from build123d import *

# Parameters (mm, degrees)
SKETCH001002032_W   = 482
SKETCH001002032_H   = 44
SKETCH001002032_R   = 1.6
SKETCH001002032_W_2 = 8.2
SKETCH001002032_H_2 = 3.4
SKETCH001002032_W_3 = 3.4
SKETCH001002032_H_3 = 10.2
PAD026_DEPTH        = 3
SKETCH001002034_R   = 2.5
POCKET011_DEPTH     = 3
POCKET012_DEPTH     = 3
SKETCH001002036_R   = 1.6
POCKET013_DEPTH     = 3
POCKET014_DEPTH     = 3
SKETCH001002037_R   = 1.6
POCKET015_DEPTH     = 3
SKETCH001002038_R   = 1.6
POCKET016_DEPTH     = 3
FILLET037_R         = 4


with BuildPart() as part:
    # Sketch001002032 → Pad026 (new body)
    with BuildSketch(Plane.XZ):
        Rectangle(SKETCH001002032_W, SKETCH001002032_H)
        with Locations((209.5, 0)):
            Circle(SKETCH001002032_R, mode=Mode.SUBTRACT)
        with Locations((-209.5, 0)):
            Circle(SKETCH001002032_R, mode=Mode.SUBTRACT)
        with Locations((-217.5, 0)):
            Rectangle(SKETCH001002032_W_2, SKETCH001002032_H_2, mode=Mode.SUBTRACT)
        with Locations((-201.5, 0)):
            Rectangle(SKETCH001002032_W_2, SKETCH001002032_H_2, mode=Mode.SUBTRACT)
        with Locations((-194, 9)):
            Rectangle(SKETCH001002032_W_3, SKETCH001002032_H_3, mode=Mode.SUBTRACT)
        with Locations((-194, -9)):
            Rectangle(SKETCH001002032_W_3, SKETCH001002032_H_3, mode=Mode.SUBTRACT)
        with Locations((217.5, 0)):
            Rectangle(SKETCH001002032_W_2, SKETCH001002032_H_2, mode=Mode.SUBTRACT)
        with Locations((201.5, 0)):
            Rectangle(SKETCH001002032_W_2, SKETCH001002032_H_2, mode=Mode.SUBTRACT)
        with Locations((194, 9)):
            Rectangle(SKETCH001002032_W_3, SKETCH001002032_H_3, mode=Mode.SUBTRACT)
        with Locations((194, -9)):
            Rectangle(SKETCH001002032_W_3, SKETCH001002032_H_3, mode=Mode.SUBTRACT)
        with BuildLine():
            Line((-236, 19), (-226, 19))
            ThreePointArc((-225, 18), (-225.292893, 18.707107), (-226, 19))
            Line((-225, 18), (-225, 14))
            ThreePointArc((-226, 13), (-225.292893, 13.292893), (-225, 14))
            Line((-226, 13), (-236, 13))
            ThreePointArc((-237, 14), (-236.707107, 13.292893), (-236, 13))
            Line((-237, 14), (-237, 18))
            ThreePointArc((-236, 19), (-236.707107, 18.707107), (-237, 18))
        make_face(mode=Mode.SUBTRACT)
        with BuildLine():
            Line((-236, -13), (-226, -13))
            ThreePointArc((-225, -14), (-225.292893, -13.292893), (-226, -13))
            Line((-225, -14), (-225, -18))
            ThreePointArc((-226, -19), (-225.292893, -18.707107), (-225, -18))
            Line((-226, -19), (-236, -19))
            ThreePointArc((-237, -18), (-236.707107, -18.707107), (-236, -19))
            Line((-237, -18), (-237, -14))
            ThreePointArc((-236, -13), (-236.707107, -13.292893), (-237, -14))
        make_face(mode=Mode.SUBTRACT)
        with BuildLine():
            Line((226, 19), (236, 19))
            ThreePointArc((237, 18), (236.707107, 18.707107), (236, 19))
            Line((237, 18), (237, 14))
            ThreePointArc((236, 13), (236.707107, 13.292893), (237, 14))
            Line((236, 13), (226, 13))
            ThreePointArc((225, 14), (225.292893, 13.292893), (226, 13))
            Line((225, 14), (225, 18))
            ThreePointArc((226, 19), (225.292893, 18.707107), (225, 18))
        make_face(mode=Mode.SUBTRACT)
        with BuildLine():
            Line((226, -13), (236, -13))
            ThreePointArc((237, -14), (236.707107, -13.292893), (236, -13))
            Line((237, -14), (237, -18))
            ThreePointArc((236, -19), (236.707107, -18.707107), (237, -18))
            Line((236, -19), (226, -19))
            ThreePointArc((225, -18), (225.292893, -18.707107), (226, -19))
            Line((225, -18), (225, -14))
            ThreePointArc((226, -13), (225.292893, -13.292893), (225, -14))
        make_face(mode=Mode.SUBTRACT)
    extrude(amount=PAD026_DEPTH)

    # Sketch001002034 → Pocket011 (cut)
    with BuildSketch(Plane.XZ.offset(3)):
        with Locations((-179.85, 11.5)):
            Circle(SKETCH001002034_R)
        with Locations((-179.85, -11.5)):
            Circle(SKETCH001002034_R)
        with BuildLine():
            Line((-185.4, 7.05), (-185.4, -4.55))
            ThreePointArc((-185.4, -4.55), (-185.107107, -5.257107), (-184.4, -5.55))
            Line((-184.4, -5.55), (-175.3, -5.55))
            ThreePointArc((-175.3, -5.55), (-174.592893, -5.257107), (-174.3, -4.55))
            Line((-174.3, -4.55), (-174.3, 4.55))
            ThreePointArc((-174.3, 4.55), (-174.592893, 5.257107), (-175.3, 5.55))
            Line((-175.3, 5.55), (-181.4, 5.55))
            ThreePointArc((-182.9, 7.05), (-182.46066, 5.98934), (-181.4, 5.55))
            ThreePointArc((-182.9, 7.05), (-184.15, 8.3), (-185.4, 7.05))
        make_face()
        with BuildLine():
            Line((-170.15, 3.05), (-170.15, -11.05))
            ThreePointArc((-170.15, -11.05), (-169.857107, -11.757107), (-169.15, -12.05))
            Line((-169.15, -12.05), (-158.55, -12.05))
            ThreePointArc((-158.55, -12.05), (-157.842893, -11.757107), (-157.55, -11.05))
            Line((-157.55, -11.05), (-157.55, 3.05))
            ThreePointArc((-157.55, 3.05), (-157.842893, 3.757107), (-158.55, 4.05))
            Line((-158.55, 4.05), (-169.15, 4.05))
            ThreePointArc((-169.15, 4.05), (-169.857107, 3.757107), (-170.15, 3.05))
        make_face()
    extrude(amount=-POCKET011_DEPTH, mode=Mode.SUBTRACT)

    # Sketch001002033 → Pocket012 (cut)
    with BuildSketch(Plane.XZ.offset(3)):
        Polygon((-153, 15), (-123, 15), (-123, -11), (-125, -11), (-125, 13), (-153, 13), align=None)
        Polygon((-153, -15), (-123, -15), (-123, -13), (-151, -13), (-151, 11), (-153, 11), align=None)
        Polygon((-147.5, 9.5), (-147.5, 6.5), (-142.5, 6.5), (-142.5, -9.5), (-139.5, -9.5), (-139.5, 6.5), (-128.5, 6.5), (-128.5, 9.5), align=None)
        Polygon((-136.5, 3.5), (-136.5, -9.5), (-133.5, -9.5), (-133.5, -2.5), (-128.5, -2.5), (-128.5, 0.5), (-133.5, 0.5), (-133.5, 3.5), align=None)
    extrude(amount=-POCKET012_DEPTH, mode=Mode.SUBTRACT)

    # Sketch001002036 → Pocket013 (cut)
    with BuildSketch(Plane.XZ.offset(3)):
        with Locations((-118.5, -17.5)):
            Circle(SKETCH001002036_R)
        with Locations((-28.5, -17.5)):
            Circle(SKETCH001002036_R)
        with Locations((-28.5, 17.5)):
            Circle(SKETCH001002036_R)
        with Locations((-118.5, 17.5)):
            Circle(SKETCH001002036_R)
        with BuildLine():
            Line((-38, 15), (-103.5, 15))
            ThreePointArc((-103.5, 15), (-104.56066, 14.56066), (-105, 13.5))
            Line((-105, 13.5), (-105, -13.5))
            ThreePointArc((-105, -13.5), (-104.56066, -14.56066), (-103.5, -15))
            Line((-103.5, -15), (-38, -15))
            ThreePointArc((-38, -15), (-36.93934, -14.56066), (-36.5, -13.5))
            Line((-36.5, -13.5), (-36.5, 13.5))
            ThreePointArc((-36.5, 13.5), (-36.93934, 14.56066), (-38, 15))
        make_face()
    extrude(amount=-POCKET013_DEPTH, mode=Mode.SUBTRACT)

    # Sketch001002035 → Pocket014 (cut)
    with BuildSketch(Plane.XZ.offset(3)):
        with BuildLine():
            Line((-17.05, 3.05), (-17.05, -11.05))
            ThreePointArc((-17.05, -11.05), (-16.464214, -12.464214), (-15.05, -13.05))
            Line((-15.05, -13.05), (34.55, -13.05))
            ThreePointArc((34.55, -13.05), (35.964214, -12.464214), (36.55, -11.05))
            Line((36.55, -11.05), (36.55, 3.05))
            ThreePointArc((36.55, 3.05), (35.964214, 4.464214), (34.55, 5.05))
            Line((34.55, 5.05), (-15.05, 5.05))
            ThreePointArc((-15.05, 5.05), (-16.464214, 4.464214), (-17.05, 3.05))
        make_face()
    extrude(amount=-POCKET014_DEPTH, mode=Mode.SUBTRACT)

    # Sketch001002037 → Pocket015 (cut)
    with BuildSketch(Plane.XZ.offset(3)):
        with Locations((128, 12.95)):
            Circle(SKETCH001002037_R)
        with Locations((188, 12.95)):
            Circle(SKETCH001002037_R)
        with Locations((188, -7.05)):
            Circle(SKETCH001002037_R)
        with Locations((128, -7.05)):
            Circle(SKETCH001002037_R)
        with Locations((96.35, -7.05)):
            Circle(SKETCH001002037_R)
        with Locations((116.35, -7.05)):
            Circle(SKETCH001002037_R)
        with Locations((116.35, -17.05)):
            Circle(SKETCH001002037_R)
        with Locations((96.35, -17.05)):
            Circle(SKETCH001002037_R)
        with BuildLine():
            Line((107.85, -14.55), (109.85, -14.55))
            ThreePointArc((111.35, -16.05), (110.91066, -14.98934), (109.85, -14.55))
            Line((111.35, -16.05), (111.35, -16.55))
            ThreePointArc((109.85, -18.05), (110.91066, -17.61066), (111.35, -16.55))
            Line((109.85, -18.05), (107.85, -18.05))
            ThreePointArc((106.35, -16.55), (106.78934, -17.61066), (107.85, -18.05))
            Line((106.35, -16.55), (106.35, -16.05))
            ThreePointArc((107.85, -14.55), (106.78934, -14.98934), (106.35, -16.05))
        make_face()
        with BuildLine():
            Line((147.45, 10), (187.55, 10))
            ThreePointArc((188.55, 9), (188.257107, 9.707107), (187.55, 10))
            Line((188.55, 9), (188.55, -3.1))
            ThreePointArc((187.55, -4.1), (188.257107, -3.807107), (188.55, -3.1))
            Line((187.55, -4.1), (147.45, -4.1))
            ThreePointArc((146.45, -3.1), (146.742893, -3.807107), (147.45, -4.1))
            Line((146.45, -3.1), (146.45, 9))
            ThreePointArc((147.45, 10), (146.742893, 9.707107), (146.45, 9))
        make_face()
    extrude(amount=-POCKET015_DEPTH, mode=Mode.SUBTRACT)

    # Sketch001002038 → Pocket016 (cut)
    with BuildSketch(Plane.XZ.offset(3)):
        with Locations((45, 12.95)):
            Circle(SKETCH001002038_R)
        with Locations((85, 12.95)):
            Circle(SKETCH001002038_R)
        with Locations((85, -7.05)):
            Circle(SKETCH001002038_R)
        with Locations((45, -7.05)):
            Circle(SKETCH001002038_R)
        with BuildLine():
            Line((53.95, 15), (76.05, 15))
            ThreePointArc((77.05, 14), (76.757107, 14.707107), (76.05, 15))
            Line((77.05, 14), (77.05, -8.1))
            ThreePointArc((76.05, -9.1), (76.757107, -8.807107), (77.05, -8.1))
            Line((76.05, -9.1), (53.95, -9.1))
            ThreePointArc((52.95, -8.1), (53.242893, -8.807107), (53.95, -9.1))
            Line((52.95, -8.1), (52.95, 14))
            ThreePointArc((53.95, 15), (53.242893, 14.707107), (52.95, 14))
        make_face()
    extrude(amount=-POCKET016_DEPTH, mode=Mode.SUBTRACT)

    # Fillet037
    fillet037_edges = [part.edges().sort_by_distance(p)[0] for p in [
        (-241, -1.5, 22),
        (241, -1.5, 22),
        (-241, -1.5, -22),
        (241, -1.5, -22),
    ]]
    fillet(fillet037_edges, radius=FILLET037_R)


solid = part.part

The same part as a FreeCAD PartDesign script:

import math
import FreeCAD as App
import Part
import Sketcher
Q = App.Units.Quantity


def edges_at(feature, points):
    """Names of the edges that pass closest to the given points."""
    edges = feature.Shape.Edges
    near = lambda p: min(range(len(edges)), key=lambda i: edges[i].distToShape(Part.Vertex(*p))[0])
    return sorted({f"Edge{near(p) + 1}" for p in points})


def add_polygon(sketch, points):
    """Adds a closed chain of lines whose ends are joined by coincident constraints."""
    first, n = sketch.GeometryCount, len(points)
    for a, b in zip(points, points[1:] + points[:1]):
        sketch.addGeometry(Part.LineSegment(App.Vector(*a, 0), App.Vector(*b, 0)), False)
    for i in range(n):
        sketch.addConstraint(Sketcher.Constraint("Coincident", first + i, 2, first + (i + 1) % n, 1))

doc = App.newDocument("Part")
body = doc.addObject("PartDesign::Body", "Body")

# Sketch on XZ plane
sketch1 = body.newObject("Sketcher::SketchObject", "Sketch")
sketch1.AttachmentSupport = (doc.getObject("XZ_Plane"), [""])
sketch1.MapMode = "FlatFace"
add_polygon(sketch1, [(-241, 22), (-241, -22), (241, -22), (241, 22)])  # lines 0-3
sketch1.addGeometry(Part.ArcOfCircle(Part.Circle(App.Vector(-236, -14, 0), App.Vector(0, 0, 1), 1), math.radians(90), math.radians(180)), False)  # 4
sketch1.addGeometry(Part.LineSegment(App.Vector(-236, -13, 0), App.Vector(-226, -13, 0)), False)  # 5
sketch1.addGeometry(Part.ArcOfCircle(Part.Circle(App.Vector(-226, -14, 0), App.Vector(0, 0, 1), 1), math.radians(0), math.radians(90)), False)  # 6
sketch1.addGeometry(Part.LineSegment(App.Vector(-225, -14, 0), App.Vector(-225, -18, 0)), False)  # 7
sketch1.addGeometry(Part.ArcOfCircle(Part.Circle(App.Vector(-226, -18, 0), App.Vector(0, 0, 1), 1), math.radians(-90), math.radians(0)), False)  # 8
sketch1.addGeometry(Part.LineSegment(App.Vector(-226, -19, 0), App.Vector(-236, -19, 0)), False)  # 9
sketch1.addGeometry(Part.ArcOfCircle(Part.Circle(App.Vector(-236, -18, 0), App.Vector(0, 0, 1), 1), math.radians(180), math.radians(270)), False)  # 10
sketch1.addGeometry(Part.LineSegment(App.Vector(-237, -18, 0), App.Vector(-237, -14, 0)), False)  # 11
add_polygon(sketch1, [(-192.3, -14.1), (-195.7, -14.1), (-195.7, -3.9), (-192.3, -3.9)])  # lines 12-15
sketch1.addGeometry(Part.ArcOfCircle(Part.Circle(App.Vector(226, -14, 0), App.Vector(0, 0, 1), 1), math.radians(90), math.radians(180)), False)  # 16
sketch1.addGeometry(Part.LineSegment(App.Vector(226, -13, 0), App.Vector(236, -13, 0)), False)  # 17
sketch1.addGeometry(Part.ArcOfCircle(Part.Circle(App.Vector(236, -14, 0), App.Vector(0, 0, 1), 1), math.radians(0), math.radians(90)), False)  # 18
sketch1.addGeometry(Part.LineSegment(App.Vector(237, -14, 0), App.Vector(237, -18, 0)), False)  # 19
sketch1.addGeometry(Part.ArcOfCircle(Part.Circle(App.Vector(236, -18, 0), App.Vector(0, 0, 1), 1), math.radians(-90), math.radians(0)), False)  # 20
sketch1.addGeometry(Part.LineSegment(App.Vector(236, -19, 0), App.Vector(226, -19, 0)), False)  # 21
sketch1.addGeometry(Part.ArcOfCircle(Part.Circle(App.Vector(226, -18, 0), App.Vector(0, 0, 1), 1), math.radians(180), math.radians(270)), False)  # 22
sketch1.addGeometry(Part.LineSegment(App.Vector(225, -18, 0), App.Vector(225, -14, 0)), False)  # 23
add_polygon(sketch1, [(195.7, -14.1), (192.3, -14.1), (192.3, -3.9), (195.7, -3.9)])  # lines 24-27
add_polygon(sketch1, [(-213.4, -1.7), (-221.6, -1.7), (-221.6, 1.7), (-213.4, 1.7)])  # lines 28-31
sketch1.addGeometry(Part.Circle(App.Vector(-209.5, 0, 0), App.Vector(0, 0, 1), 1.6), False)  # 32
add_polygon(sketch1, [(-197.4, -1.7), (-205.6, -1.7), (-205.6, 1.7), (-197.4, 1.7)])  # lines 33-36
add_polygon(sketch1, [(-192.3, 3.9), (-195.7, 3.9), (-195.7, 14.1), (-192.3, 14.1)])  # lines 37-40
sketch1.addGeometry(Part.ArcOfCircle(Part.Circle(App.Vector(-236, 18, 0), App.Vector(0, 0, 1), 1), math.radians(90), math.radians(180)), False)  # 41
sketch1.addGeometry(Part.LineSegment(App.Vector(-236, 19, 0), App.Vector(-226, 19, 0)), False)  # 42
sketch1.addGeometry(Part.ArcOfCircle(Part.Circle(App.Vector(-226, 18, 0), App.Vector(0, 0, 1), 1), math.radians(0), math.radians(90)), False)  # 43
sketch1.addGeometry(Part.LineSegment(App.Vector(-225, 18, 0), App.Vector(-225, 14, 0)), False)  # 44
sketch1.addGeometry(Part.ArcOfCircle(Part.Circle(App.Vector(-226, 14, 0), App.Vector(0, 0, 1), 1), math.radians(-90), math.radians(0)), False)  # 45
sketch1.addGeometry(Part.LineSegment(App.Vector(-226, 13, 0), App.Vector(-236, 13, 0)), False)  # 46
sketch1.addGeometry(Part.ArcOfCircle(Part.Circle(App.Vector(-236, 14, 0), App.Vector(0, 0, 1), 1), math.radians(180), math.radians(270)), False)  # 47
sketch1.addGeometry(Part.LineSegment(App.Vector(-237, 14, 0), App.Vector(-237, 18, 0)), False)  # 48
add_polygon(sketch1, [(205.6, -1.7), (197.4, -1.7), (197.4, 1.7), (205.6, 1.7)])  # lines 49-52
sketch1.addGeometry(Part.Circle(App.Vector(209.5, 0, 0), App.Vector(0, 0, 1), 1.6), False)  # 53
add_polygon(sketch1, [(221.6, -1.7), (213.4, -1.7), (213.4, 1.7), (221.6, 1.7)])  # lines 54-57
add_polygon(sketch1, [(195.7, 3.9), (192.3, 3.9), (192.3, 14.1), (195.7, 14.1)])  # lines 58-61
sketch1.addGeometry(Part.ArcOfCircle(Part.Circle(App.Vector(226, 18, 0), App.Vector(0, 0, 1), 1), math.radians(90), math.radians(180)), False)  # 62
sketch1.addGeometry(Part.LineSegment(App.Vector(226, 19, 0), App.Vector(236, 19, 0)), False)  # 63
sketch1.addGeometry(Part.ArcOfCircle(Part.Circle(App.Vector(236, 18, 0), App.Vector(0, 0, 1), 1), math.radians(0), math.radians(90)), False)  # 64
sketch1.addGeometry(Part.LineSegment(App.Vector(237, 18, 0), App.Vector(237, 14, 0)), False)  # 65
sketch1.addGeometry(Part.ArcOfCircle(Part.Circle(App.Vector(236, 14, 0), App.Vector(0, 0, 1), 1), math.radians(-90), math.radians(0)), False)  # 66
sketch1.addGeometry(Part.LineSegment(App.Vector(236, 13, 0), App.Vector(226, 13, 0)), False)  # 67
sketch1.addGeometry(Part.ArcOfCircle(Part.Circle(App.Vector(226, 14, 0), App.Vector(0, 0, 1), 1), math.radians(180), math.radians(270)), False)  # 68
sketch1.addGeometry(Part.LineSegment(App.Vector(225, 14, 0), App.Vector(225, 18, 0)), False)  # 69
sketch1.addConstraint([
    Sketcher.Constraint("Tangent", 4, 1, 5, 1),
    Sketcher.Constraint("Tangent", 5, 2, 6, 2),
    Sketcher.Constraint("Tangent", 6, 1, 7, 1),
    Sketcher.Constraint("Tangent", 7, 2, 8, 2),
    Sketcher.Constraint("Tangent", 8, 1, 9, 1),
    Sketcher.Constraint("Tangent", 9, 2, 10, 2),
    Sketcher.Constraint("Tangent", 10, 1, 11, 1),
    Sketcher.Constraint("Tangent", 11, 2, 4, 2),
    Sketcher.Constraint("Tangent", 16, 1, 17, 1),
    Sketcher.Constraint("Tangent", 17, 2, 18, 2),
    Sketcher.Constraint("Tangent", 18, 1, 19, 1),
    Sketcher.Constraint("Tangent", 19, 2, 20, 2),
    Sketcher.Constraint("Tangent", 20, 1, 21, 1),
    Sketcher.Constraint("Tangent", 21, 2, 22, 2),
    Sketcher.Constraint("Tangent", 22, 1, 23, 1),
    Sketcher.Constraint("Tangent", 23, 2, 16, 2),
    Sketcher.Constraint("Tangent", 41, 1, 42, 1),
    Sketcher.Constraint("Tangent", 42, 2, 43, 2),
    Sketcher.Constraint("Tangent", 43, 1, 44, 1),
    Sketcher.Constraint("Tangent", 44, 2, 45, 2),
    Sketcher.Constraint("Tangent", 45, 1, 46, 1),
    Sketcher.Constraint("Tangent", 46, 2, 47, 2),
    Sketcher.Constraint("Tangent", 47, 1, 48, 1),
    Sketcher.Constraint("Tangent", 48, 2, 41, 2),
    Sketcher.Constraint("Tangent", 62, 1, 63, 1),
    Sketcher.Constraint("Tangent", 63, 2, 64, 2),
    Sketcher.Constraint("Tangent", 64, 1, 65, 1),
    Sketcher.Constraint("Tangent", 65, 2, 66, 2),
    Sketcher.Constraint("Tangent", 66, 1, 67, 1),
    Sketcher.Constraint("Tangent", 67, 2, 68, 2),
    Sketcher.Constraint("Tangent", 68, 1, 69, 1),
    Sketcher.Constraint("Tangent", 69, 2, 62, 2),
    Sketcher.Constraint("Vertical", 0),
    Sketcher.Constraint("Horizontal", 1),
    Sketcher.Constraint("Vertical", 2),
    Sketcher.Constraint("Horizontal", 3),
    Sketcher.Constraint("Horizontal", 5),
    Sketcher.Constraint("Vertical", 7),
    Sketcher.Constraint("Horizontal", 9),
    Sketcher.Constraint("Vertical", 11),
    Sketcher.Constraint("Horizontal", 12),
    Sketcher.Constraint("Vertical", 13),
    Sketcher.Constraint("Horizontal", 14),
    Sketcher.Constraint("Vertical", 15),
    Sketcher.Constraint("Horizontal", 17),
    Sketcher.Constraint("Vertical", 19),
    Sketcher.Constraint("Horizontal", 21),
    Sketcher.Constraint("Vertical", 23),
    Sketcher.Constraint("Horizontal", 24),
    Sketcher.Constraint("Vertical", 25),
    Sketcher.Constraint("Horizontal", 26),
    Sketcher.Constraint("Vertical", 27),
    Sketcher.Constraint("Horizontal", 28),
    Sketcher.Constraint("Vertical", 29),
    Sketcher.Constraint("Horizontal", 30),
    Sketcher.Constraint("Vertical", 31),
    Sketcher.Constraint("Horizontal", 33),
    Sketcher.Constraint("Vertical", 34),
    Sketcher.Constraint("Horizontal", 35),
    Sketcher.Constraint("Vertical", 36),
    Sketcher.Constraint("Horizontal", 37),
    Sketcher.Constraint("Vertical", 38),
    Sketcher.Constraint("Horizontal", 39),
    Sketcher.Constraint("Vertical", 40),
    Sketcher.Constraint("Horizontal", 42),
    Sketcher.Constraint("Vertical", 44),
    Sketcher.Constraint("Horizontal", 46),
    Sketcher.Constraint("Vertical", 48),
    Sketcher.Constraint("Horizontal", 49),
    Sketcher.Constraint("Vertical", 50),
    Sketcher.Constraint("Horizontal", 51),
    Sketcher.Constraint("Vertical", 52),
    Sketcher.Constraint("Horizontal", 54),
    Sketcher.Constraint("Vertical", 55),
    Sketcher.Constraint("Horizontal", 56),
    Sketcher.Constraint("Vertical", 57),
    Sketcher.Constraint("Horizontal", 58),
    Sketcher.Constraint("Vertical", 59),
    Sketcher.Constraint("Horizontal", 60),
    Sketcher.Constraint("Vertical", 61),
    Sketcher.Constraint("Horizontal", 63),
    Sketcher.Constraint("Vertical", 65),
    Sketcher.Constraint("Horizontal", 67),
    Sketcher.Constraint("Vertical", 69),
    Sketcher.Constraint("Equal", 4, 6),
    Sketcher.Constraint("Equal", 6, 8),
    Sketcher.Constraint("Equal", 8, 10),
    Sketcher.Constraint("Equal", 10, 16),
    Sketcher.Constraint("Equal", 16, 18),
    Sketcher.Constraint("Equal", 18, 20),
    Sketcher.Constraint("Equal", 20, 22),
    Sketcher.Constraint("Equal", 22, 41),
    Sketcher.Constraint("Equal", 41, 43),
    Sketcher.Constraint("Equal", 43, 45),
    Sketcher.Constraint("Equal", 45, 47),
    Sketcher.Constraint("Equal", 32, 53),
    Sketcher.Constraint("Equal", 47, 62),
    Sketcher.Constraint("Equal", 62, 64),
    Sketcher.Constraint("Equal", 64, 66),
    Sketcher.Constraint("Equal", 66, 68),
    Sketcher.Constraint("Symmetric", 20, 3, 41, 3, -1, 1),
    Sketcher.Constraint("Symmetric", 16, 3, 45, 3, -1, 1),
    Sketcher.Constraint("Symmetric", 32, 3, 53, 3, -1, 1),
    Sketcher.Constraint("Symmetric", 8, 3, 62, 3, -1, 1),
    Sketcher.Constraint("Symmetric", 4, 3, 66, 3, -1, 1),
    Sketcher.Constraint("Symmetric", 0, 2, 2, 2, -1, 1),
    Sketcher.Constraint("Symmetric", 26, 2, 37, 2, -1, 1),
    Sketcher.Constraint("Symmetric", 24, 2, 39, 2, -1, 1),
    Sketcher.Constraint("Symmetric", 35, 2, 49, 2, -1, 1),
    Sketcher.Constraint("Symmetric", 33, 2, 51, 2, -1, 1),
    Sketcher.Constraint("Symmetric", 30, 2, 54, 2, -1, 1),
    Sketcher.Constraint("Symmetric", 28, 2, 56, 2, -1, 1),
    Sketcher.Constraint("Symmetric", 14, 2, 58, 2, -1, 1),
    Sketcher.Constraint("Symmetric", 12, 2, 60, 2, -1, 1),
    Sketcher.Constraint("Symmetric", 6, 3, 16, 3, -2),
    Sketcher.Constraint("Symmetric", 10, 3, 20, 3, -2),
    Sketcher.Constraint("Symmetric", 15, 2, 24, 2, -2),
    Sketcher.Constraint("Symmetric", 13, 2, 26, 2, -2),
    Sketcher.Constraint("PointOnObject", 32, 3, -1),
    Sketcher.Constraint("Horizontal", 31, 2, 33, 2),
    Sketcher.Constraint("Horizontal", 30, 2, 34, 2),
    Sketcher.Constraint("Horizontal", 36, 2, 49, 2),
    Sketcher.Constraint("Equal", 30, 33),
    Sketcher.Constraint("Equal", 60, 29),
    Sketcher.Constraint("Radius", 4, Q("0.999999 mm")),
    Sketcher.Constraint("Diameter", 32, Q("3.2 mm")),
    Sketcher.Constraint("DistanceX", 1, 1, 1, 2, Q("482 mm")),
    Sketcher.Constraint("DistanceX", 5, 1, 5, 2, Q("10 mm")),
    Sketcher.Constraint("DistanceY", 0, 2, 0, 1, Q("44 mm")),
    Sketcher.Constraint("DistanceY", 7, 2, 7, 1, Q("4 mm")),
    Sketcher.Constraint("DistanceX", 12, 2, 12, 1, Q("3.4 mm")),
    Sketcher.Constraint("DistanceX", 28, 2, 28, 1, Q("8.2 mm")),
    Sketcher.Constraint("DistanceY", 13, 1, 13, 2, Q("10.2 mm")),
    Sketcher.Constraint("DistanceX", 4, 3, -1, 1, Q("236.000001 mm")),
    Sketcher.Constraint("DistanceY", 4, 3, -1, 1, Q("13.999999 mm")),
    Sketcher.Constraint("DistanceX", 32, 3, -1, 1, Q("209.5 mm")),
    Sketcher.Constraint("DistanceX", 12, 2, -1, 1, Q("195.7 mm")),
    Sketcher.Constraint("DistanceY", 12, 2, -1, 1, Q("14.1 mm")),
    Sketcher.Constraint("DistanceX", 28, 2, -1, 1, Q("221.6 mm")),
    Sketcher.Constraint("DistanceX", 33, 2, -1, 1, Q("205.6 mm")),
])
pad1 = body.newObject("PartDesign::Pad", "Pad")
pad1.Profile = sketch1
pad1.Length = 3

# Sketch on XZ plane
sketch2 = body.newObject("Sketcher::SketchObject", "Sketch001")
sketch2.AttachmentSupport = (doc.getObject("XZ_Plane"), [""])
sketch2.MapMode = "FlatFace"
sketch2.AttachmentOffset = App.Placement(App.Vector(0, 0, 3), App.Rotation())
sketch2.addGeometry([
    Part.Circle(App.Vector(-179.8, 11.5, 0), App.Vector(0, 0, 1), 2.5),  # 0
    Part.Circle(App.Vector(-179.8, -11.5, 0), App.Vector(0, 0, 1), 2.5),  # 1
    Part.LineSegment(App.Vector(-185.4, 7, 0), App.Vector(-185.4, -4.5, 0)),  # 2
    Part.ArcOfCircle(Part.Circle(App.Vector(-184.4, -4.6, 0), App.Vector(0, 0, 1), 1), math.radians(180), math.radians(270)),  # 3
    Part.LineSegment(App.Vector(-184.4, -5.5, 0), App.Vector(-175.3, -5.5, 0)),  # 4
    Part.ArcOfCircle(Part.Circle(App.Vector(-175.3, -4.6, 0), App.Vector(0, 0, 1), 1), math.radians(-90), math.radians(0)),  # 5
    Part.LineSegment(App.Vector(-174.3, -4.5, 0), App.Vector(-174.3, 4.5, 0)),  # 6
    Part.ArcOfCircle(Part.Circle(App.Vector(-175.3, 4.6, 0), App.Vector(0, 0, 1), 1), math.radians(0), math.radians(90)),  # 7
    Part.LineSegment(App.Vector(-175.3, 5.5, 0), App.Vector(-181.4, 5.5, 0)),  # 8
    Part.ArcOfCircle(Part.Circle(App.Vector(-181.4, 7.1, 0), App.Vector(0, 0, 1), 1.5), math.radians(-180), math.radians(-90)),  # 9
    Part.ArcOfCircle(Part.Circle(App.Vector(-184.2, 7, 0), App.Vector(0, 0, 1), 1.2), math.radians(0), math.radians(180)),  # 10
    Part.LineSegment(App.Vector(-170.2, 3, 0), App.Vector(-170.2, -11.1, 0)),  # 11
    Part.ArcOfCircle(Part.Circle(App.Vector(-169.2, -11.1, 0), App.Vector(0, 0, 1), 1), math.radians(180), math.radians(270)),  # 12
    Part.LineSegment(App.Vector(-169.2, -12.1, 0), App.Vector(-158.6, -12.1, 0)),  # 13
    Part.ArcOfCircle(Part.Circle(App.Vector(-158.5, -11.1, 0), App.Vector(0, 0, 1), 1), math.radians(-90), math.radians(0)),  # 14
    Part.LineSegment(App.Vector(-157.6, -11.1, 0), App.Vector(-157.6, 3, 0)),  # 15
    Part.ArcOfCircle(Part.Circle(App.Vector(-158.5, 3.1, 0), App.Vector(0, 0, 1), 1), math.radians(0), math.radians(90)),  # 16
    Part.LineSegment(App.Vector(-158.6, 4, 0), App.Vector(-169.2, 4, 0)),  # 17
    Part.ArcOfCircle(Part.Circle(App.Vector(-169.2, 3.1, 0), App.Vector(0, 0, 1), 1), math.radians(90), math.radians(180)),  # 18
], False)
sketch2.addConstraint([
    Sketcher.Constraint("Tangent", 2, 2, 3, 1),
    Sketcher.Constraint("Tangent", 3, 2, 4, 1),
    Sketcher.Constraint("Tangent", 4, 2, 5, 1),
    Sketcher.Constraint("Tangent", 5, 2, 6, 1),
    Sketcher.Constraint("Tangent", 6, 2, 7, 1),
    Sketcher.Constraint("Tangent", 7, 2, 8, 1),
    Sketcher.Constraint("Tangent", 8, 2, 9, 2),
    Sketcher.Constraint("Tangent", 9, 1, 10, 1),
    Sketcher.Constraint("Tangent", 10, 2, 2, 1),
    Sketcher.Constraint("Tangent", 11, 2, 12, 1),
    Sketcher.Constraint("Tangent", 12, 2, 13, 1),
    Sketcher.Constraint("Tangent", 13, 2, 14, 1),
    Sketcher.Constraint("Tangent", 14, 2, 15, 1),
    Sketcher.Constraint("Tangent", 15, 2, 16, 1),
    Sketcher.Constraint("Tangent", 16, 2, 17, 1),
    Sketcher.Constraint("Tangent", 17, 2, 18, 1),
    Sketcher.Constraint("Tangent", 18, 2, 11, 1),
    Sketcher.Constraint("Vertical", 2),
    Sketcher.Constraint("Horizontal", 4),
    Sketcher.Constraint("Vertical", 6),
    Sketcher.Constraint("Horizontal", 8),
    Sketcher.Constraint("Vertical", 11),
    Sketcher.Constraint("Horizontal", 13),
    Sketcher.Constraint("Vertical", 15),
    Sketcher.Constraint("Horizontal", 17),
    Sketcher.Constraint("Equal", 0, 1),
    Sketcher.Constraint("Equal", 3, 5),
    Sketcher.Constraint("Equal", 5, 7),
    Sketcher.Constraint("Equal", 7, 12),
    Sketcher.Constraint("Equal", 12, 14),
    Sketcher.Constraint("Equal", 14, 16),
    Sketcher.Constraint("Equal", 16, 18),
    Sketcher.Constraint("Symmetric", 0, 3, 1, 3, -1),
    Sketcher.Constraint("Horizontal", 9, 3, 10, 3),
    Sketcher.Constraint("Equal", 4, 6),
    Sketcher.Constraint("Diameter", 0, Q("5 mm")),
    Sketcher.Constraint("Radius", 3, Q("0.999999 mm")),
    Sketcher.Constraint("Radius", 9, Q("1.500001 mm")),
    Sketcher.Constraint("Radius", 10, Q("1.25 mm")),
    Sketcher.Constraint("DistanceX", 4, 1, 4, 2, Q("9.1 mm")),
    Sketcher.Constraint("DistanceX", 13, 1, 13, 2, Q("10.6 mm")),
    Sketcher.Constraint("DistanceY", 11, 2, 11, 1, Q("14.1 mm")),
    Sketcher.Constraint("DistanceY", 1, 3, 0, 3, Q("23 mm")),
    Sketcher.Constraint("DistanceY", 18, 3, 9, 3, Q("4 mm")),
    Sketcher.Constraint("DistanceX", 3, 3, -1, 1, Q("184.400001 mm")),
    Sketcher.Constraint("DistanceX", 10, 3, 0, 3, Q("4.3 mm")),
    Sketcher.Constraint("DistanceX", 1, 3, 12, 3, Q("10.699999 mm")),
    Sketcher.Constraint("DistanceY", 3, 3, -1, 1, Q("4.550001 mm")),
])
pocket1 = body.newObject("PartDesign::Pocket", "Pocket")
pocket1.Profile = sketch2
pocket1.Length = 3

# Sketch on XZ plane
sketch3 = body.newObject("Sketcher::SketchObject", "Sketch002")
sketch3.AttachmentSupport = (doc.getObject("XZ_Plane"), [""])
sketch3.MapMode = "FlatFace"
sketch3.AttachmentOffset = App.Placement(App.Vector(0, 0, 3), App.Rotation())
add_polygon(sketch3, [(-123, 15), (-153, 15), (-153, 13), (-125, 13), (-125, -11), (-123, -11)])  # lines 0-5
add_polygon(sketch3, [(-153, -15), (-123, -15), (-123, -13), (-151, -13), (-151, 11), (-153, 11)])  # lines 6-11
add_polygon(sketch3, [(-147.5, 9.5), (-147.5, 6.5), (-142.5, 6.5), (-142.5, -9.5), (-139.5, -9.5), (-139.5, 6.5), (-128.5, 6.5), (-128.5, 9.5)])  # lines 12-19
add_polygon(sketch3, [(-136.5, 3.5), (-136.5, -9.5), (-133.5, -9.5), (-133.5, -2.5), (-128.5, -2.5), (-128.5, 0.5), (-133.5, 0.5), (-133.5, 3.5)])  # lines 20-27
sketch3.addConstraint([
    Sketcher.Constraint("Horizontal", 0),
    Sketcher.Constraint("Vertical", 1),
    Sketcher.Constraint("Horizontal", 2),
    Sketcher.Constraint("Vertical", 3),
    Sketcher.Constraint("Horizontal", 4),
    Sketcher.Constraint("Vertical", 5),
    Sketcher.Constraint("Horizontal", 6),
    Sketcher.Constraint("Vertical", 7),
    Sketcher.Constraint("Horizontal", 8),
    Sketcher.Constraint("Vertical", 9),
    Sketcher.Constraint("Horizontal", 10),
    Sketcher.Constraint("Vertical", 11),
    Sketcher.Constraint("Vertical", 12),
    Sketcher.Constraint("Horizontal", 13),
    Sketcher.Constraint("Vertical", 14),
    Sketcher.Constraint("Horizontal", 15),
    Sketcher.Constraint("Vertical", 16),
    Sketcher.Constraint("Horizontal", 17),
    Sketcher.Constraint("Vertical", 18),
    Sketcher.Constraint("Horizontal", 19),
    Sketcher.Constraint("Vertical", 20),
    Sketcher.Constraint("Horizontal", 21),
    Sketcher.Constraint("Vertical", 22),
    Sketcher.Constraint("Horizontal", 23),
    Sketcher.Constraint("Vertical", 24),
    Sketcher.Constraint("Horizontal", 25),
    Sketcher.Constraint("Vertical", 26),
    Sketcher.Constraint("Horizontal", 27),
    Sketcher.Constraint("Symmetric", 5, 2, 6, 2, -1),
    Sketcher.Constraint("Horizontal", 13, 2, 16, 2),
    Sketcher.Constraint("Horizontal", 15, 2, 20, 2),
    Sketcher.Constraint("Vertical", 1, 2, 10, 2),
    Sketcher.Constraint("Vertical", 18, 2, 23, 2),
    Sketcher.Constraint("Vertical", 22, 2, 25, 2),
    Sketcher.Constraint("Equal", 2, 8),
    Sketcher.Constraint("Equal", 15, 21),
    Sketcher.Constraint("Equal", 13, 23),
    Sketcher.Constraint("Equal", 10, 1),
    Sketcher.Constraint("Equal", 1, 7),
    Sketcher.Constraint("Equal", 3, 9),
    Sketcher.Constraint("Equal", 27, 12),
    Sketcher.Constraint("Equal", 18, 24),
    Sketcher.Constraint("Equal", 24, 26),
    Sketcher.Constraint("DistanceX", 0, 2, 0, 1, Q("30 mm")),
    Sketcher.Constraint("DistanceX", 2, 1, 2, 2, Q("28 mm")),
    Sketcher.Constraint("DistanceX", 13, 1, 13, 2, Q("5 mm")),
    Sketcher.Constraint("DistanceX", 15, 1, 15, 2, Q("3 mm")),
    Sketcher.Constraint("DistanceX", 17, 1, 17, 2, Q("11 mm")),
    Sketcher.Constraint("DistanceY", 3, 2, 3, 1, Q("24 mm")),
    Sketcher.Constraint("DistanceY", 14, 2, 14, 1, Q("16 mm")),
    Sketcher.Constraint("DistanceY", 20, 2, 20, 1, Q("13 mm")),
    Sketcher.Constraint("DistanceX", 0, 2, -1, 1, Q("153 mm")),
    Sketcher.Constraint("DistanceY", -1, 1, 0, 2, Q("15 mm")),
    Sketcher.Constraint("DistanceX", 12, 2, -1, 1, Q("147.5 mm")),
    Sketcher.Constraint("DistanceY", -1, 1, 12, 2, Q("6.5 mm")),
])
pocket2 = body.newObject("PartDesign::Pocket", "Pocket001")
pocket2.Profile = sketch3
pocket2.Length = 3

# Sketch on XZ plane
sketch4 = body.newObject("Sketcher::SketchObject", "Sketch003")
sketch4.AttachmentSupport = (doc.getObject("XZ_Plane"), [""])
sketch4.MapMode = "FlatFace"
sketch4.AttachmentOffset = App.Placement(App.Vector(0, 0, 3), App.Rotation())
sketch4.addGeometry([
    Part.Circle(App.Vector(-118.5, -17.5, 0), App.Vector(0, 0, 1), 1.6),  # 0
    Part.Circle(App.Vector(-28.5, -17.5, 0), App.Vector(0, 0, 1), 1.6),  # 1
    Part.Circle(App.Vector(-28.5, 17.5, 0), App.Vector(0, 0, 1), 1.6),  # 2
    Part.Circle(App.Vector(-118.5, 17.5, 0), App.Vector(0, 0, 1), 1.6),  # 3
    Part.LineSegment(App.Vector(-38, 15, 0), App.Vector(-103.5, 15, 0)),  # 4
    Part.ArcOfCircle(Part.Circle(App.Vector(-103.5, 13.5, 0), App.Vector(0, 0, 1), 1.5), math.radians(90), math.radians(180)),  # 5
    Part.LineSegment(App.Vector(-105, 13.5, 0), App.Vector(-105, -13.5, 0)),  # 6
    Part.ArcOfCircle(Part.Circle(App.Vector(-103.5, -13.5, 0), App.Vector(0, 0, 1), 1.5), math.radians(-180), math.radians(-90)),  # 7
    Part.LineSegment(App.Vector(-103.5, -15, 0), App.Vector(-38, -15, 0)),  # 8
    Part.ArcOfCircle(Part.Circle(App.Vector(-38, -13.5, 0), App.Vector(0, 0, 1), 1.5), math.radians(-90), math.radians(0)),  # 9
    Part.LineSegment(App.Vector(-36.5, -13.5, 0), App.Vector(-36.5, 13.5, 0)),  # 10
    Part.ArcOfCircle(Part.Circle(App.Vector(-38, 13.5, 0), App.Vector(0, 0, 1), 1.5), math.radians(0), math.radians(90)),  # 11
], False)
sketch4.addConstraint([
    Sketcher.Constraint("Tangent", 4, 2, 5, 1),
    Sketcher.Constraint("Tangent", 5, 2, 6, 1),
    Sketcher.Constraint("Tangent", 6, 2, 7, 1),
    Sketcher.Constraint("Tangent", 7, 2, 8, 1),
    Sketcher.Constraint("Tangent", 8, 2, 9, 1),
    Sketcher.Constraint("Tangent", 9, 2, 10, 1),
    Sketcher.Constraint("Tangent", 10, 2, 11, 1),
    Sketcher.Constraint("Tangent", 11, 2, 4, 1),
    Sketcher.Constraint("Horizontal", 4),
    Sketcher.Constraint("Vertical", 6),
    Sketcher.Constraint("Horizontal", 8),
    Sketcher.Constraint("Vertical", 10),
    Sketcher.Constraint("Equal", 0, 1),
    Sketcher.Constraint("Equal", 1, 2),
    Sketcher.Constraint("Equal", 2, 3),
    Sketcher.Constraint("Equal", 5, 7),
    Sketcher.Constraint("Equal", 7, 9),
    Sketcher.Constraint("Equal", 9, 11),
    Sketcher.Constraint("Symmetric", 1, 3, 2, 3, -1),
    Sketcher.Constraint("Symmetric", 0, 3, 3, 3, -1),
    Sketcher.Constraint("Horizontal", 0, 3, 1, 3),
    Sketcher.Constraint("Diameter", 0, Q("3.2 mm")),
    Sketcher.Constraint("Radius", 5, Q("1.500001 mm")),
    Sketcher.Constraint("DistanceY", 6, 2, 6, 1, Q("27 mm")),
    Sketcher.Constraint("DistanceX", 4, 2, 4, 1, Q("65.5 mm")),
    Sketcher.Constraint("DistanceX", 9, 3, -1, 1, Q("38.000001 mm")),
    Sketcher.Constraint("DistanceY", -1, 1, 4, 2, Q("15 mm")),
    Sketcher.Constraint("DistanceX", 0, 3, 1, 3, Q("90 mm")),
    Sketcher.Constraint("DistanceY", 1, 3, 2, 3, Q("35 mm")),
    Sketcher.Constraint("DistanceX", 3, 3, 5, 3, Q("15.000001 mm")),
])
pocket3 = body.newObject("PartDesign::Pocket", "Pocket002")
pocket3.Profile = sketch4
pocket3.Length = 3

# Sketch on XZ plane
sketch5 = body.newObject("Sketcher::SketchObject", "Sketch004")
sketch5.AttachmentSupport = (doc.getObject("XZ_Plane"), [""])
sketch5.MapMode = "FlatFace"
sketch5.AttachmentOffset = App.Placement(App.Vector(0, 0, 3), App.Rotation())
sketch5.addGeometry([
    Part.LineSegment(App.Vector(-17.1, 3, 0), App.Vector(-17.1, -11.1, 0)),  # 0
    Part.ArcOfCircle(Part.Circle(App.Vector(-15.1, -11.1, 0), App.Vector(0, 0, 1), 2), math.radians(180), math.radians(270)),  # 1
    Part.LineSegment(App.Vector(-15.1, -13.1, 0), App.Vector(34.5, -13.1, 0)),  # 2
    Part.ArcOfCircle(Part.Circle(App.Vector(34.6, -11.1, 0), App.Vector(0, 0, 1), 2), math.radians(-90), math.radians(0)),  # 3
    Part.LineSegment(App.Vector(36.5, -11.1, 0), App.Vector(36.5, 3, 0)),  # 4
    Part.ArcOfCircle(Part.Circle(App.Vector(34.6, 3.1, 0), App.Vector(0, 0, 1), 2), math.radians(0), math.radians(90)),  # 5
    Part.LineSegment(App.Vector(34.5, 5, 0), App.Vector(-15.1, 5, 0)),  # 6
    Part.ArcOfCircle(Part.Circle(App.Vector(-15.1, 3.1, 0), App.Vector(0, 0, 1), 2), math.radians(90), math.radians(180)),  # 7
], False)
sketch5.addConstraint([
    Sketcher.Constraint("Tangent", 0, 2, 1, 1),
    Sketcher.Constraint("Tangent", 1, 2, 2, 1),
    Sketcher.Constraint("Tangent", 2, 2, 3, 1),
    Sketcher.Constraint("Tangent", 3, 2, 4, 1),
    Sketcher.Constraint("Tangent", 4, 2, 5, 1),
    Sketcher.Constraint("Tangent", 5, 2, 6, 1),
    Sketcher.Constraint("Tangent", 6, 2, 7, 1),
    Sketcher.Constraint("Tangent", 7, 2, 0, 1),
    Sketcher.Constraint("Vertical", 0),
    Sketcher.Constraint("Horizontal", 2),
    Sketcher.Constraint("Vertical", 4),
    Sketcher.Constraint("Horizontal", 6),
    Sketcher.Constraint("Equal", 1, 3),
    Sketcher.Constraint("Equal", 3, 5),
    Sketcher.Constraint("Equal", 5, 7),
    Sketcher.Constraint("Radius", 1, Q("1.999999 mm")),
    Sketcher.Constraint("DistanceX", 2, 1, 2, 2, Q("49.6 mm")),
    Sketcher.Constraint("DistanceY", 0, 2, 0, 1, Q("14.1 mm")),
    Sketcher.Constraint("DistanceX", 1, 3, -1, 1, Q("15.050001 mm")),
    Sketcher.Constraint("DistanceY", 1, 3, -1, 1, Q("11.050001 mm")),
])
pocket4 = body.newObject("PartDesign::Pocket", "Pocket003")
pocket4.Profile = sketch5
pocket4.Length = 3

# Sketch on XZ plane
sketch6 = body.newObject("Sketcher::SketchObject", "Sketch005")
sketch6.AttachmentSupport = (doc.getObject("XZ_Plane"), [""])
sketch6.MapMode = "FlatFace"
sketch6.AttachmentOffset = App.Placement(App.Vector(0, 0, 3), App.Rotation())
sketch6.addGeometry([
    Part.Circle(App.Vector(128, 12.9, 0), App.Vector(0, 0, 1), 1.6),  # 0
    Part.Circle(App.Vector(188, 12.9, 0), App.Vector(0, 0, 1), 1.6),  # 1
    Part.Circle(App.Vector(188, -7, 0), App.Vector(0, 0, 1), 1.6),  # 2
    Part.Circle(App.Vector(128, -7, 0), App.Vector(0, 0, 1), 1.6),  # 3
    Part.Circle(App.Vector(96.3, -7, 0), App.Vector(0, 0, 1), 1.6),  # 4
    Part.Circle(App.Vector(116.3, -7, 0), App.Vector(0, 0, 1), 1.6),  # 5
    Part.Circle(App.Vector(116.3, -17.1, 0), App.Vector(0, 0, 1), 1.6),  # 6
    Part.Circle(App.Vector(96.3, -17.1, 0), App.Vector(0, 0, 1), 1.6),  # 7
    Part.LineSegment(App.Vector(109.8, -14.6, 0), App.Vector(107.8, -14.6, 0)),  # 8
    Part.ArcOfCircle(Part.Circle(App.Vector(107.9, -16.1, 0), App.Vector(0, 0, 1), 1.5), math.radians(90), math.radians(180)),  # 9
    Part.LineSegment(App.Vector(106.3, -16.1, 0), App.Vector(106.3, -16.6, 0)),  # 10
    Part.ArcOfCircle(Part.Circle(App.Vector(107.9, -16.5, 0), App.Vector(0, 0, 1), 1.5), math.radians(-180), math.radians(-90)),  # 11
    Part.LineSegment(App.Vector(107.8, -18.1, 0), App.Vector(109.8, -18.1, 0)),  # 12
    Part.ArcOfCircle(Part.Circle(App.Vector(109.8, -16.5, 0), App.Vector(0, 0, 1), 1.5), math.radians(-90), math.radians(0)),  # 13
    Part.LineSegment(App.Vector(111.3, -16.6, 0), App.Vector(111.3, -16.1, 0)),  # 14
    Part.ArcOfCircle(Part.Circle(App.Vector(109.8, -16.1, 0), App.Vector(0, 0, 1), 1.5), math.radians(0), math.radians(90)),  # 15
    Part.LineSegment(App.Vector(187.6, 10, 0), App.Vector(147.4, 10, 0)),  # 16
    Part.ArcOfCircle(Part.Circle(App.Vector(147.4, 9, 0), App.Vector(0, 0, 1), 1), math.radians(90), math.radians(180)),  # 17
    Part.LineSegment(App.Vector(146.4, 9, 0), App.Vector(146.4, -3.1, 0)),  # 18
    Part.ArcOfCircle(Part.Circle(App.Vector(147.4, -3.1, 0), App.Vector(0, 0, 1), 1), math.radians(180), math.radians(270)),  # 19
    Part.LineSegment(App.Vector(147.4, -4.1, 0), App.Vector(187.6, -4.1, 0)),  # 20
    Part.ArcOfCircle(Part.Circle(App.Vector(187.6, -3.1, 0), App.Vector(0, 0, 1), 1), math.radians(-90), math.radians(0)),  # 21
    Part.LineSegment(App.Vector(188.6, -3.1, 0), App.Vector(188.6, 9, 0)),  # 22
    Part.ArcOfCircle(Part.Circle(App.Vector(187.6, 9, 0), App.Vector(0, 0, 1), 1), math.radians(0), math.radians(90)),  # 23
], False)
sketch6.addConstraint([
    Sketcher.Constraint("Tangent", 8, 2, 9, 1),
    Sketcher.Constraint("Tangent", 9, 2, 10, 1),
    Sketcher.Constraint("Tangent", 10, 2, 11, 1),
    Sketcher.Constraint("Tangent", 11, 2, 12, 1),
    Sketcher.Constraint("Tangent", 12, 2, 13, 1),
    Sketcher.Constraint("Tangent", 13, 2, 14, 1),
    Sketcher.Constraint("Tangent", 14, 2, 15, 1),
    Sketcher.Constraint("Tangent", 15, 2, 8, 1),
    Sketcher.Constraint("Tangent", 16, 2, 17, 1),
    Sketcher.Constraint("Tangent", 17, 2, 18, 1),
    Sketcher.Constraint("Tangent", 18, 2, 19, 1),
    Sketcher.Constraint("Tangent", 19, 2, 20, 1),
    Sketcher.Constraint("Tangent", 20, 2, 21, 1),
    Sketcher.Constraint("Tangent", 21, 2, 22, 1),
    Sketcher.Constraint("Tangent", 22, 2, 23, 1),
    Sketcher.Constraint("Tangent", 23, 2, 16, 1),
    Sketcher.Constraint("Horizontal", 8),
    Sketcher.Constraint("Vertical", 10),
    Sketcher.Constraint("Horizontal", 12),
    Sketcher.Constraint("Vertical", 14),
    Sketcher.Constraint("Horizontal", 16),
    Sketcher.Constraint("Vertical", 18),
    Sketcher.Constraint("Horizontal", 20),
    Sketcher.Constraint("Vertical", 22),
    Sketcher.Constraint("Equal", 0, 1),
    Sketcher.Constraint("Equal", 1, 2),
    Sketcher.Constraint("Equal", 2, 3),
    Sketcher.Constraint("Equal", 3, 4),
    Sketcher.Constraint("Equal", 4, 5),
    Sketcher.Constraint("Equal", 5, 6),
    Sketcher.Constraint("Equal", 6, 7),
    Sketcher.Constraint("Equal", 9, 11),
    Sketcher.Constraint("Equal", 11, 13),
    Sketcher.Constraint("Equal", 13, 15),
    Sketcher.Constraint("Equal", 17, 19),
    Sketcher.Constraint("Equal", 19, 21),
    Sketcher.Constraint("Equal", 21, 23),
    Sketcher.Constraint("Horizontal", 0, 3, 1, 3),
    Sketcher.Constraint("Horizontal", 2, 3, 3, 3),
    Sketcher.Constraint("Horizontal", 3, 3, 4, 3),
    Sketcher.Constraint("Horizontal", 4, 3, 5, 3),
    Sketcher.Constraint("Horizontal", 6, 3, 7, 3),
    Sketcher.Constraint("Vertical", 1, 3, 2, 3),
    Sketcher.Constraint("Vertical", 0, 3, 3, 3),
    Sketcher.Constraint("Vertical", 5, 3, 6, 3),
    Sketcher.Constraint("Vertical", 4, 3, 7, 3),
    Sketcher.Constraint("Radius", 17, Q("0.999999 mm")),
    Sketcher.Constraint("Diameter", 0, Q("3.2 mm")),
    Sketcher.Constraint("Radius", 9, Q("1.500001 mm")),
    Sketcher.Constraint("DistanceX", 8, 2, 8, 1, Q("2 mm")),
    Sketcher.Constraint("DistanceX", 16, 2, 16, 1, Q("40.1 mm")),
    Sketcher.Constraint("DistanceY", 10, 2, 10, 1, Q("0.5 mm")),
    Sketcher.Constraint("DistanceY", 18, 2, 18, 1, Q("12.1 mm")),
    Sketcher.Constraint("DistanceX", -1, 1, 0, 3, Q("128 mm")),
    Sketcher.Constraint("DistanceX", -1, 1, 1, 3, Q("188 mm")),
    Sketcher.Constraint("DistanceY", -1, 1, 17, 3, Q("9.000001 mm")),
    Sketcher.Constraint("DistanceY", 2, 3, 1, 3, Q("20 mm")),
    Sketcher.Constraint("DistanceX", 4, 3, 5, 3, Q("20 mm")),
    Sketcher.Constraint("DistanceY", 6, 3, 5, 3, Q("10 mm")),
    Sketcher.Constraint("DistanceY", 6, 3, 9, 3, Q("0.999999 mm")),
    Sketcher.Constraint("DistanceX", 9, 3, 6, 3, Q("8.499999 mm")),
    Sketcher.Constraint("DistanceX", 5, 3, 17, 3, Q("31.099999 mm")),
    Sketcher.Constraint("DistanceY", -1, 1, 0, 3, Q("12.95 mm")),
    Sketcher.Constraint("DistanceX", -1, 1, 4, 3, Q("96.35 mm")),
])
pocket5 = body.newObject("PartDesign::Pocket", "Pocket004")
pocket5.Profile = sketch6
pocket5.Length = 3

# Sketch on XZ plane
sketch7 = body.newObject("Sketcher::SketchObject", "Sketch006")
sketch7.AttachmentSupport = (doc.getObject("XZ_Plane"), [""])
sketch7.MapMode = "FlatFace"
sketch7.AttachmentOffset = App.Placement(App.Vector(0, 0, 3), App.Rotation())
sketch7.addGeometry([
    Part.Circle(App.Vector(45, 12.9, 0), App.Vector(0, 0, 1), 1.6),  # 0
    Part.Circle(App.Vector(85, 12.9, 0), App.Vector(0, 0, 1), 1.6),  # 1
    Part.Circle(App.Vector(85, -7, 0), App.Vector(0, 0, 1), 1.6),  # 2
    Part.Circle(App.Vector(45, -7, 0), App.Vector(0, 0, 1), 1.6),  # 3
    Part.LineSegment(App.Vector(76, 15, 0), App.Vector(54, 15, 0)),  # 4
    Part.ArcOfCircle(Part.Circle(App.Vector(53.9, 14, 0), App.Vector(0, 0, 1), 1), math.radians(90), math.radians(180)),  # 5
    Part.LineSegment(App.Vector(53, 14, 0), App.Vector(53, -8.1, 0)),  # 6
    Part.ArcOfCircle(Part.Circle(App.Vector(53.9, -8.1, 0), App.Vector(0, 0, 1), 1), math.radians(180), math.radians(270)),  # 7
    Part.LineSegment(App.Vector(54, -9.1, 0), App.Vector(76, -9.1, 0)),  # 8
    Part.ArcOfCircle(Part.Circle(App.Vector(76.1, -8.1, 0), App.Vector(0, 0, 1), 1), math.radians(-90), math.radians(0)),  # 9
    Part.LineSegment(App.Vector(77, -8.1, 0), App.Vector(77, 14, 0)),  # 10
    Part.ArcOfCircle(Part.Circle(App.Vector(76.1, 14, 0), App.Vector(0, 0, 1), 1), math.radians(0), math.radians(90)),  # 11
], False)
sketch7.addConstraint([
    Sketcher.Constraint("Tangent", 4, 2, 5, 1),
    Sketcher.Constraint("Tangent", 5, 2, 6, 1),
    Sketcher.Constraint("Tangent", 6, 2, 7, 1),
    Sketcher.Constraint("Tangent", 7, 2, 8, 1),
    Sketcher.Constraint("Tangent", 8, 2, 9, 1),
    Sketcher.Constraint("Tangent", 9, 2, 10, 1),
    Sketcher.Constraint("Tangent", 10, 2, 11, 1),
    Sketcher.Constraint("Tangent", 11, 2, 4, 1),
    Sketcher.Constraint("Horizontal", 4),
    Sketcher.Constraint("Vertical", 6),
    Sketcher.Constraint("Horizontal", 8),
    Sketcher.Constraint("Vertical", 10),
    Sketcher.Constraint("Equal", 0, 1),
    Sketcher.Constraint("Equal", 1, 2),
    Sketcher.Constraint("Equal", 2, 3),
    Sketcher.Constraint("Equal", 5, 7),
    Sketcher.Constraint("Equal", 7, 9),
    Sketcher.Constraint("Equal", 9, 11),
    Sketcher.Constraint("Horizontal", 0, 3, 1, 3),
    Sketcher.Constraint("Horizontal", 2, 3, 3, 3),
    Sketcher.Constraint("Vertical", 1, 3, 2, 3),
    Sketcher.Constraint("Vertical", 0, 3, 3, 3),
    Sketcher.Constraint("Equal", 8, 6),
    Sketcher.Constraint("Radius", 5, Q("0.999999 mm")),
    Sketcher.Constraint("Diameter", 0, Q("3.2 mm")),
    Sketcher.Constraint("DistanceX", 4, 2, 4, 1, Q("22.1 mm")),
    Sketcher.Constraint("DistanceX", -1, 1, 0, 3, Q("45 mm")),
    Sketcher.Constraint("DistanceX", -1, 1, 1, 3, Q("85 mm")),
    Sketcher.Constraint("DistanceY", -1, 1, 5, 3, Q("14.000001 mm")),
    Sketcher.Constraint("DistanceY", 2, 3, 1, 3, Q("20 mm")),
    Sketcher.Constraint("DistanceY", -1, 1, 0, 3, Q("12.95 mm")),
    Sketcher.Constraint("DistanceX", -1, 1, 5, 3, Q("53.949999 mm")),
])
pocket6 = body.newObject("PartDesign::Pocket", "Pocket005")
pocket6.Profile = sketch7
pocket6.Length = 3
doc.recompute()

fillet = body.newObject("PartDesign::Fillet", "Fillet")
fillet.Base = (pocket6, edges_at(pocket6, [
    (-241, -1.5, 22),
    (241, -1.5, 22),
    (-241, -1.5, -22),
    (241, -1.5, -22),
]))
fillet.Radius = 4

doc.recompute()
